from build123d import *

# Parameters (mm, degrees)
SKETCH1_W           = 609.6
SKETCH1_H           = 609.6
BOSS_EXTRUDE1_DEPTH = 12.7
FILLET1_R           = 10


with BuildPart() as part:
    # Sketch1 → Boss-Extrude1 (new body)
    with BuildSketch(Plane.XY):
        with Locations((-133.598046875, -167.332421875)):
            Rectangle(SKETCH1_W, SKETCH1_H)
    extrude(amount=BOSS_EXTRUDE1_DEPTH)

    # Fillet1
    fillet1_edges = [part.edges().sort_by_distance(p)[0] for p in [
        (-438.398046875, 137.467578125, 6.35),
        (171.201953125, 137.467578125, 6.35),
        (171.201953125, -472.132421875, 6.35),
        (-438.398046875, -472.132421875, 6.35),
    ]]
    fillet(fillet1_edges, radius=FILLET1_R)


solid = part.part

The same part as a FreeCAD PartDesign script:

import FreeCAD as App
import Part
import Sketcher
from FreeCAD import Vector
Q = App.Units.Quantity


def edges_at(feature, points):
    """Names of the edges that pass closest to the given points."""
    edges = feature.Shape.Edges
    near = lambda p: min(range(len(edges)), key=lambda i: edges[i].distToShape(Part.Vertex(*p))[0])
    return sorted({f"Edge{near(p) + 1}" for p in points})


def add_polygon(sketch, points):
    """Adds a closed chain of lines whose ends are joined by coincident constraints."""
    first, n = sketch.GeometryCount, len(points)
    for a, b in zip(points, points[1:] + points[:1]):
        sketch.addGeometry(Part.LineSegment(App.Vector(*a, 0), App.Vector(*b, 0)), False)
    for i in range(n):
        sketch.addConstraint(Sketcher.Constraint("Coincident", first + i, 2, first + (i + 1) % n, 1))

doc = App.newDocument("Part")
body = doc.addObject("PartDesign::Body", "Body")

sketch1 = body.newObject("Sketcher::SketchObject", "Sketch")
sketch1.AttachmentSupport = (doc.getObject("XY_Plane"), [""])
sketch1.MapMode = "FlatFace"
add_polygon(sketch1, [(-438, 137), (-438, -472), (171, -472), (171, 137)])
sketch1.addConstraint([
    Sketcher.Constraint("Vertical", 0),
    Sketcher.Constraint("Horizontal", 1),
    Sketcher.Constraint("Vertical", 2),
    Sketcher.Constraint("Horizontal", 3),
    Sketcher.Constraint("Equal", 3, 0),
    Sketcher.Constraint("DistanceX", 1, 1, 1, 2, Q("24 in")),
    Sketcher.Constraint("DistanceY", 0, 2, -1, 1, Q("472.132422 mm")),
    Sketcher.Constraint("DistanceX", 0, 2, -1, 1, Q("438.398047 mm")),
])
pad1 = body.newObject("PartDesign::Pad", "Pad")
pad1.Profile = sketch1
pad1.Length = Q("0.5 in")
doc.recompute()

fillet = body.newObject("PartDesign::Fillet", "Fillet")
fillet.Base = (pad1, edges_at(pad1, [
    (-438.398, 137.468, 6.35),
    (171.202, 137.468, 6.35),
    (171.202, -472.132, 6.35),
    (-438.398, -472.132, 6.35),
]))
fillet.Radius = 10

doc.recompute()
